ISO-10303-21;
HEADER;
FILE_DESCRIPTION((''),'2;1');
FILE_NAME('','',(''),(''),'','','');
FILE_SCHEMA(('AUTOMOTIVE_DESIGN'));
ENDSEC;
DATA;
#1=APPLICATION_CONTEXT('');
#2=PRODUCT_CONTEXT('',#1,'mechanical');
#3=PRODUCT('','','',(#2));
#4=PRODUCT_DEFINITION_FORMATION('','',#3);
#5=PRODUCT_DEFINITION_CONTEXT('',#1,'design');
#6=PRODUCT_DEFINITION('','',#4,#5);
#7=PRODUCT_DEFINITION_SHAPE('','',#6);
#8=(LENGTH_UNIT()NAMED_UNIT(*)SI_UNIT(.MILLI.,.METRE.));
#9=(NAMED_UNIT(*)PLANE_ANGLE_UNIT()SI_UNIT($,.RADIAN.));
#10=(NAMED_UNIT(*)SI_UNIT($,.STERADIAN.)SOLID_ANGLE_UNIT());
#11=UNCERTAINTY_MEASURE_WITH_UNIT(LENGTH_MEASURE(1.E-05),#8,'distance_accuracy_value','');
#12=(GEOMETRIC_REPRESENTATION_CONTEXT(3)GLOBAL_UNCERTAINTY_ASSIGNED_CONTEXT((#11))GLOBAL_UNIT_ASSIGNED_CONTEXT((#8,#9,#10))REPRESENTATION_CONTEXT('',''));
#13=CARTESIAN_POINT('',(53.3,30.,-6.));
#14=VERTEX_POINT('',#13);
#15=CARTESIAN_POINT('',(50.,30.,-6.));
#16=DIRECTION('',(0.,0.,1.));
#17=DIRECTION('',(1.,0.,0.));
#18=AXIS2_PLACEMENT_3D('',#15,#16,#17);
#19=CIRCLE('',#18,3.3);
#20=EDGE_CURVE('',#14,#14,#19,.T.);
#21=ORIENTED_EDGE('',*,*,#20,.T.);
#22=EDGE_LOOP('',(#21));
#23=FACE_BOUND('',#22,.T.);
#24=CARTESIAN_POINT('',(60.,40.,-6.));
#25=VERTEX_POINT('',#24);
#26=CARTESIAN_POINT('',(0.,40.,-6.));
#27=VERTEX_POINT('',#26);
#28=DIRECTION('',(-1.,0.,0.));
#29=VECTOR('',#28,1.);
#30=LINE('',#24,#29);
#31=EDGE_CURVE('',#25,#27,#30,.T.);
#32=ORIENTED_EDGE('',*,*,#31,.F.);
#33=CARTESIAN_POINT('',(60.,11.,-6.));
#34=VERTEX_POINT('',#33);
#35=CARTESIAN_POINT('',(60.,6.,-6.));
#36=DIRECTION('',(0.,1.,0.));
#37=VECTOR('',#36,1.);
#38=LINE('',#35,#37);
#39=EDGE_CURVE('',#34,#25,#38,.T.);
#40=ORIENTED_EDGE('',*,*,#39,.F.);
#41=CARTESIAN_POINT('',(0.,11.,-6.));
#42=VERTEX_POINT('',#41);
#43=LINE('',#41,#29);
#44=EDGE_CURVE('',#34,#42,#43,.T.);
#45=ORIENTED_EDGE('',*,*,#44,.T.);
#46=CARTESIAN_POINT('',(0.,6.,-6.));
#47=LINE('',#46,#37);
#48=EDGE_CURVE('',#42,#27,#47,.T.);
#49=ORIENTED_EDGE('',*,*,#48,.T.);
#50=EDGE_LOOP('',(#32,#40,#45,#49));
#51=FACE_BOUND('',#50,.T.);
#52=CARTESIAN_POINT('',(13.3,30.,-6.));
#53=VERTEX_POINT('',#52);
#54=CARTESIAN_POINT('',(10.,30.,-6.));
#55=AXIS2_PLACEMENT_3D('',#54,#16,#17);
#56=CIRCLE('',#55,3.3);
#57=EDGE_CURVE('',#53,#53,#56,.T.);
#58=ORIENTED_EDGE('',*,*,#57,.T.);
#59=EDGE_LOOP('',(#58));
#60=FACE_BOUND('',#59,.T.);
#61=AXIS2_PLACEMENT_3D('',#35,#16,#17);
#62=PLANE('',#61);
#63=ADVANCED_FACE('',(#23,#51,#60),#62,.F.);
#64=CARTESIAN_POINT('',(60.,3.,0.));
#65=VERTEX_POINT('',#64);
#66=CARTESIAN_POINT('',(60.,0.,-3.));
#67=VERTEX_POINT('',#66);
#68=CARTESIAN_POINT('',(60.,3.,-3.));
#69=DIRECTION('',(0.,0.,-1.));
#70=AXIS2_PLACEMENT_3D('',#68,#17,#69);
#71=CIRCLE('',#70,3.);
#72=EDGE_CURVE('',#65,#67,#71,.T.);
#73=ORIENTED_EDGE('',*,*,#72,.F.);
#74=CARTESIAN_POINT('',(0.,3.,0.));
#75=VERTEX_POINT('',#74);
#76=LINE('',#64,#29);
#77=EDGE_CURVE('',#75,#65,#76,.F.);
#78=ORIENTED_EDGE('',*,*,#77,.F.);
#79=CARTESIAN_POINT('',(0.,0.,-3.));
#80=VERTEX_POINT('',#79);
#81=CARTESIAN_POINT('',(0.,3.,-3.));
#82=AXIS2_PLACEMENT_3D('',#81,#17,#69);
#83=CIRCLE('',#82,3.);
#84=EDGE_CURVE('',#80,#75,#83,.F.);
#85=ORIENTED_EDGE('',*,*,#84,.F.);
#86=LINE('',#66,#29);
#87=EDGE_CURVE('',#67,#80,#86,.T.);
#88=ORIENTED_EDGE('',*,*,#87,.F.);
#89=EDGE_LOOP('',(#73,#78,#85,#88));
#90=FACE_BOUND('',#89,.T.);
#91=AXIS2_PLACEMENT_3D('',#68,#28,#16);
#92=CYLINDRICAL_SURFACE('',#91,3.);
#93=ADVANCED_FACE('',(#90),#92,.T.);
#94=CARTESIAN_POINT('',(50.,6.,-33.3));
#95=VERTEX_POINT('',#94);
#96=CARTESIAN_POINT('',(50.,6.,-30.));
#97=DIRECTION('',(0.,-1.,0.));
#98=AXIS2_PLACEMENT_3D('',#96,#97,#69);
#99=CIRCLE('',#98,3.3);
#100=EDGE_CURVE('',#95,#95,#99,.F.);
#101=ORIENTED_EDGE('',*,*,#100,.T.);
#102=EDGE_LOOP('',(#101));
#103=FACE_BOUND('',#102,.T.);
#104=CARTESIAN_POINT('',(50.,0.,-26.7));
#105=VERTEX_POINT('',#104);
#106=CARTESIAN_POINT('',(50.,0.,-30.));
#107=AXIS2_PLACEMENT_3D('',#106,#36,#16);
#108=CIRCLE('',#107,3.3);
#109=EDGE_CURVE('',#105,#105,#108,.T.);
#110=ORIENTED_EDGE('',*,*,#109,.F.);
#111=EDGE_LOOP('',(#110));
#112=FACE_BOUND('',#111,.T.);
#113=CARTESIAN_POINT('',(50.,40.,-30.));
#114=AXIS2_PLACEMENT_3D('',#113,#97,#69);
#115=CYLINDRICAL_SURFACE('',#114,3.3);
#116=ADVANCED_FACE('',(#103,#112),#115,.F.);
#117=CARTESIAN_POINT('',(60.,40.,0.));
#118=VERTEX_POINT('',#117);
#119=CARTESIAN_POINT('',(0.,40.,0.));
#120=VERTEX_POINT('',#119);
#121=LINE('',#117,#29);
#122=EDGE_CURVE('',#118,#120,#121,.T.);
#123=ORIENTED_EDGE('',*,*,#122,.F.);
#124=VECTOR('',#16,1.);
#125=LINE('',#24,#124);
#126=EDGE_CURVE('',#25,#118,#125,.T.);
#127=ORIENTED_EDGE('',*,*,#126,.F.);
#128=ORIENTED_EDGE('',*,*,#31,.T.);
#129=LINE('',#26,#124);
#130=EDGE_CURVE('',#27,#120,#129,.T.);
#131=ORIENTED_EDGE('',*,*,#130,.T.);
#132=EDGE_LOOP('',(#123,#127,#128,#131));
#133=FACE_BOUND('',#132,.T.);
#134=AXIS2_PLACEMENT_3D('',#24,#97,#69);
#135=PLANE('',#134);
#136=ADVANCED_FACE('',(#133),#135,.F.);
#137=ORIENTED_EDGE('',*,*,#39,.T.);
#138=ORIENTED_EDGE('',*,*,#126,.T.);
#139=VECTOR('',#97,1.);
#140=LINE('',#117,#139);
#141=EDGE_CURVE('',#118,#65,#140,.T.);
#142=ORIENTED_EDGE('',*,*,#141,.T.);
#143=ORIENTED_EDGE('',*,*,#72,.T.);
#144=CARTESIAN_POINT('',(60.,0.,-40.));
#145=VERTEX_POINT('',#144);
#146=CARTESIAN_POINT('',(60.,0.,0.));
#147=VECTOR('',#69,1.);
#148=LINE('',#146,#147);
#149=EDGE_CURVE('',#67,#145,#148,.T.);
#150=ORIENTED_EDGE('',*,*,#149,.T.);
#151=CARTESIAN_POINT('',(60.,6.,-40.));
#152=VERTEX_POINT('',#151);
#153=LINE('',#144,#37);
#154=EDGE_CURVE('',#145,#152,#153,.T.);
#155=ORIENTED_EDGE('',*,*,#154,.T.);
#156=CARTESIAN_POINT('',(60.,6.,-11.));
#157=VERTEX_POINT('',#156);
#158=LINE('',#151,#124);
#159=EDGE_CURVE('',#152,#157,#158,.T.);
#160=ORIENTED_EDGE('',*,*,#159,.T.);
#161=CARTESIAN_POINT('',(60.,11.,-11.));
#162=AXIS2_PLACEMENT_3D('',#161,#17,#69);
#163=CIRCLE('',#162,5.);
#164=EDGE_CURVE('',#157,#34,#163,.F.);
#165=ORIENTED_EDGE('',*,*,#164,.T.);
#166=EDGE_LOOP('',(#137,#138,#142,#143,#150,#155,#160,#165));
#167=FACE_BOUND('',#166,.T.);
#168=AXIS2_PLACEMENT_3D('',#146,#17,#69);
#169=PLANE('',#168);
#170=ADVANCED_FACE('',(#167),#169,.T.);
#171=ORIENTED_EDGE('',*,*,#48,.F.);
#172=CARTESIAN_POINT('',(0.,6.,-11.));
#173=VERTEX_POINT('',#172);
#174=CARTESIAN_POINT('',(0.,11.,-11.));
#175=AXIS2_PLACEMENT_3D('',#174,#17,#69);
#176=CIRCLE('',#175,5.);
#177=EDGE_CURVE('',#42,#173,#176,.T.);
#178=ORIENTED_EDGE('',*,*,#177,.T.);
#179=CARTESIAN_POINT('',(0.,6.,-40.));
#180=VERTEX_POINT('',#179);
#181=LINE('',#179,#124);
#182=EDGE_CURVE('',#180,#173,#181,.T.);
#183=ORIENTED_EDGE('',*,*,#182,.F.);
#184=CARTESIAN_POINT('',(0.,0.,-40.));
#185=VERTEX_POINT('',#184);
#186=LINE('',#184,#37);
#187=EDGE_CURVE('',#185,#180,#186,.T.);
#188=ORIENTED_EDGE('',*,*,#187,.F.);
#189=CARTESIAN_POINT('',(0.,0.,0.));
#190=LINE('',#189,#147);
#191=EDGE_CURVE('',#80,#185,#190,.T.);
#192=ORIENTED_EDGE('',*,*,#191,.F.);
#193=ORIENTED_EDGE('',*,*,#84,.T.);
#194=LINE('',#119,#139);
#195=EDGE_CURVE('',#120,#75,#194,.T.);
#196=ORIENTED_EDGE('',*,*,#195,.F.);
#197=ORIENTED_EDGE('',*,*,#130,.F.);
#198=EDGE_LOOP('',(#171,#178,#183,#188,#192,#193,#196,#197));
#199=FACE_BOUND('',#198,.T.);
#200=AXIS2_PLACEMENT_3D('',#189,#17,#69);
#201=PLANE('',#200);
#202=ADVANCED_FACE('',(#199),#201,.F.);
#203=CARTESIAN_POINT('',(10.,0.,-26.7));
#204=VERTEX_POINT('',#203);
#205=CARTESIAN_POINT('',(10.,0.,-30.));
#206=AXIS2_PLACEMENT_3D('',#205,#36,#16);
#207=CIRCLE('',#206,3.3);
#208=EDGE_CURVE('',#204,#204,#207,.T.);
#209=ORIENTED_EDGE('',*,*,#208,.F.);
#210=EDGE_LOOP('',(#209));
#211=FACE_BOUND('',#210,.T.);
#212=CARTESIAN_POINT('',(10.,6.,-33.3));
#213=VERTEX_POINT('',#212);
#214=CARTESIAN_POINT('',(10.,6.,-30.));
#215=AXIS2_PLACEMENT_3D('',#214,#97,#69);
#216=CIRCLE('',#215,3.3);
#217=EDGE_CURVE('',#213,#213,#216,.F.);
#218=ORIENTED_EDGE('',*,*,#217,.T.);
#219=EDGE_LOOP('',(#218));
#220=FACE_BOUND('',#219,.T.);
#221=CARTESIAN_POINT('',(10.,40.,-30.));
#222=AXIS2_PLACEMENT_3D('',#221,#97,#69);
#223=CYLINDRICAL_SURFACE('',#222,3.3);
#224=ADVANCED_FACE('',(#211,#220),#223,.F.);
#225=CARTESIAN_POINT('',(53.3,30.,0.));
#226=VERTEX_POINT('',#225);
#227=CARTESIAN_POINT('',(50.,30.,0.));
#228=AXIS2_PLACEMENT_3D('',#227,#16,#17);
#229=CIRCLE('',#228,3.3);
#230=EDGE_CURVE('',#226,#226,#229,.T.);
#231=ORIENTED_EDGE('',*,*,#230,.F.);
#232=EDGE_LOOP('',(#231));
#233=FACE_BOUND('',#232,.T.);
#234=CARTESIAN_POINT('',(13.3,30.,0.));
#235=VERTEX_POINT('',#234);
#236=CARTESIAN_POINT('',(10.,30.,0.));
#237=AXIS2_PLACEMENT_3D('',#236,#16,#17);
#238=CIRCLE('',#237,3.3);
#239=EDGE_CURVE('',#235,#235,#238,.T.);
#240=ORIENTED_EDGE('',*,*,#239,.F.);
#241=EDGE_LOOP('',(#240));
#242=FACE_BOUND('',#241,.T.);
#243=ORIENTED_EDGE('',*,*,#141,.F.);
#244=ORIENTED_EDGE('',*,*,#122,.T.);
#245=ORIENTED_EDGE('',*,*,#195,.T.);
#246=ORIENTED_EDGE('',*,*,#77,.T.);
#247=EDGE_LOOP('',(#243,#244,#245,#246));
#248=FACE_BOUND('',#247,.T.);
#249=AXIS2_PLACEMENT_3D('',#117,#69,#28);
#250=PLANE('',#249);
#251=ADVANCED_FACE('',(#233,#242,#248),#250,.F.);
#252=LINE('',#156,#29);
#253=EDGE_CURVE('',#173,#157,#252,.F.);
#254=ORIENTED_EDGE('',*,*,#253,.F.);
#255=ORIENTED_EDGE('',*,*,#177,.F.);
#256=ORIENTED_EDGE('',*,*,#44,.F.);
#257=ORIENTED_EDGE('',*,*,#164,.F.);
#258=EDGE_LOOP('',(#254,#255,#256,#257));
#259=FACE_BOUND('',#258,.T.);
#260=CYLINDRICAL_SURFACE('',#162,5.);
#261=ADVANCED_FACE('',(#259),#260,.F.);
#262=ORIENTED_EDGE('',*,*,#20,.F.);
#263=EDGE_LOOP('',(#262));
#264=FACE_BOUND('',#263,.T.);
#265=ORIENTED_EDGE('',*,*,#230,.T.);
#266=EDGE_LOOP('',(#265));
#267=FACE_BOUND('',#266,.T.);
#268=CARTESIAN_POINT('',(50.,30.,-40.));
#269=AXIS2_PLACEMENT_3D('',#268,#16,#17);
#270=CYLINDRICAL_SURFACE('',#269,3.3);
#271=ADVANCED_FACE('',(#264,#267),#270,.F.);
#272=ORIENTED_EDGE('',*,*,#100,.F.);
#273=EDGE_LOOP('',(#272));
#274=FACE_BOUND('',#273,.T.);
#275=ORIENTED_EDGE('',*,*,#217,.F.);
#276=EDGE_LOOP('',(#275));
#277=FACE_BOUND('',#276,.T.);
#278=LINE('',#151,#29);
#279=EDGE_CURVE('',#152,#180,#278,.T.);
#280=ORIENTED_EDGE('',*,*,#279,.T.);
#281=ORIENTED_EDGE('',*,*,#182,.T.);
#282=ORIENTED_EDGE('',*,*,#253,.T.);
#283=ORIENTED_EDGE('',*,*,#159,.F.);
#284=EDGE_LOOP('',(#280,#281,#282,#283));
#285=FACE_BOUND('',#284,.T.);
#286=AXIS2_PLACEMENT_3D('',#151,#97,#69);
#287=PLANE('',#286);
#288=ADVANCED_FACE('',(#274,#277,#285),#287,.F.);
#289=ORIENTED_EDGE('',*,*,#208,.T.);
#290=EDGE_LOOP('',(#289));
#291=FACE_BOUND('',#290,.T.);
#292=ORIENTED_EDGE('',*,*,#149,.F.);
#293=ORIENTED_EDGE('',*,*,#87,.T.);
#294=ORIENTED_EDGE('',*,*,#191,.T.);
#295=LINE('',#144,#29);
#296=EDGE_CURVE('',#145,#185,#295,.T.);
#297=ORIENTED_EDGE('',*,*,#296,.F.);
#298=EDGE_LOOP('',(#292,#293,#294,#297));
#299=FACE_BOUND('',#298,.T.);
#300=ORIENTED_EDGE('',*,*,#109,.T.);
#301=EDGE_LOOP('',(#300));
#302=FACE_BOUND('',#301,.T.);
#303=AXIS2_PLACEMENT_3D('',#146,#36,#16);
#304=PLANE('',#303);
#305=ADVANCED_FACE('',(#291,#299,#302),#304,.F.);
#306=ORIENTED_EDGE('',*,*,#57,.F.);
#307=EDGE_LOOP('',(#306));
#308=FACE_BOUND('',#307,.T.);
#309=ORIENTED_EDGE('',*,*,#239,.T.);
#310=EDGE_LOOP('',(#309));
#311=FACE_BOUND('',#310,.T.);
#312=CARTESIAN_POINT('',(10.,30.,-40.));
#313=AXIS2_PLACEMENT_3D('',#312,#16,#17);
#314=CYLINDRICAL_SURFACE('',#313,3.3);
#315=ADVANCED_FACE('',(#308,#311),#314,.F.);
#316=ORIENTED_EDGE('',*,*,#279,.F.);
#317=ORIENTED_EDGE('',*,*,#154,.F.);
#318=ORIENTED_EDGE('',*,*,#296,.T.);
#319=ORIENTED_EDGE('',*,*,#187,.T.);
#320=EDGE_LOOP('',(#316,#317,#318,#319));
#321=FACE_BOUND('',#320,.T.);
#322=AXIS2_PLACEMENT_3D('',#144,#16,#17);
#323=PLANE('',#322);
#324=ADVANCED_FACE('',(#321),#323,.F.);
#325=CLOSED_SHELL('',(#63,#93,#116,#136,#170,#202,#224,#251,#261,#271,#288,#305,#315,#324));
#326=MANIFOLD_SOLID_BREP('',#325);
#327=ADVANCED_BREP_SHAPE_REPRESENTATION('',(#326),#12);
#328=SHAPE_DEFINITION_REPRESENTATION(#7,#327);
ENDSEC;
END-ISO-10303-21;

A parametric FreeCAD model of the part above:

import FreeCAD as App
import Part
import Sketcher
from FreeCAD import Vector
Q = App.Units.Quantity


def edges_at(feature, points):
    """Names of the edges that pass closest to the given points."""
    edges = feature.Shape.Edges
    near = lambda p: min(range(len(edges)), key=lambda i: edges[i].distToShape(Part.Vertex(*p))[0])
    return sorted({f"Edge{near(p) + 1}" for p in points})

doc = App.newDocument("Part")
body = doc.addObject("PartDesign::Body", "Body")

# Sketch on YZ plane
sketch1 = body.newObject("Sketcher::SketchObject", "Sketch")
sketch1.AttachmentSupport = (doc.getObject("YZ_Plane"), [""])
sketch1.MapMode = "FlatFace"
sketch1.addGeometry([
    Part.LineSegment(Vector(0, 0, 0), Vector(0, -40, 0)),  # 0
    Part.LineSegment(Vector(0, -40, 0), Vector(6, -40, 0)),  # 1
    Part.LineSegment(Vector(6, -40, 0), Vector(6, -6, 0)),  # 2
    Part.LineSegment(Vector(6, -6, 0), Vector(40, -6, 0)),  # 3
    Part.LineSegment(Vector(40, -6, 0), Vector(40, 0, 0)),  # 4
    Part.LineSegment(Vector(40, 0, 0), Vector(0, 0, 0)),  # 5
], False)
sketch1.addConstraint([
    Sketcher.Constraint("Coincident", 0, 2, 1, 1),
    Sketcher.Constraint("Coincident", 1, 2, 2, 1),
    Sketcher.Constraint("Coincident", 2, 2, 3, 1),
    Sketcher.Constraint("Coincident", 3, 2, 4, 1),
    Sketcher.Constraint("Coincident", 4, 2, 5, 1),
    Sketcher.Constraint("Coincident", 5, 2, 0, 1),
    Sketcher.Constraint("Vertical", 0),
    Sketcher.Constraint("Horizontal", 1),
    Sketcher.Constraint("Vertical", 2),
    Sketcher.Constraint("Horizontal", 3),
    Sketcher.Constraint("Vertical", 4),
    Sketcher.Constraint("Horizontal", 5),
    Sketcher.Constraint("Coincident", 5, 2, -1, 1),
    Sketcher.Constraint("Equal", 5, 0),
    Sketcher.Constraint("Equal", 3, 2),
    Sketcher.Constraint("DistanceX", 1, 1, 1, 2, Q("6 mm")),
    Sketcher.Constraint("DistanceX", 3, 1, 3, 2, Q("34 mm")),
])
pad1 = body.newObject("PartDesign::Pad", "Pad")
pad1.Profile = sketch1
pad1.Length = 60

# Sketch on XZ plane
sketch2 = body.newObject("Sketcher::SketchObject", "Sketch001")
sketch2.AttachmentSupport = (doc.getObject("XZ_Plane"), [""])
sketch2.MapMode = "FlatFace"
sketch2.addGeometry([
    Part.Circle(Vector(10, -30, 0), Vector(0, 0, 1), 3.3),
    Part.Circle(Vector(50, -30, 0), Vector(0, 0, 1), 3.3),
], False)
sketch2.addConstraint([
    Sketcher.Constraint("Equal", 0, 1),
    Sketcher.Constraint("Horizontal", 0, 3, 1, 3),
    Sketcher.Constraint("Diameter", 0, Q("6.6 mm")),
    Sketcher.Constraint("DistanceX", -1, 1, 0, 3, Q("10 mm")),
    Sketcher.Constraint("DistanceY", 0, 3, -1, 1, Q("30 mm")),
    Sketcher.Constraint("DistanceX", -1, 1, 1, 3, Q("50 mm")),
])
pocket1 = body.newObject("PartDesign::Pocket", "Pocket")
pocket1.Profile = sketch2
pocket1.Type = "ThroughAll"

# Sketch on XY plane
sketch3 = body.newObject("Sketcher::SketchObject", "Sketch002")
sketch3.AttachmentSupport = (doc.getObject("XY_Plane"), [""])
sketch3.MapMode = "FlatFace"
sketch3.addGeometry([
    Part.Circle(Vector(10, 30, 0), Vector(0, 0, 1), 3.3),
    Part.Circle(Vector(50, 30, 0), Vector(0, 0, 1), 3.3),
], False)
sketch3.addConstraint([
    Sketcher.Constraint("Equal", 0, 1),
    Sketcher.Constraint("Horizontal", 0, 3, 1, 3),
    Sketcher.Constraint("Diameter", 0, Q("6.6 mm")),
    Sketcher.Constraint("DistanceX", -1, 1, 0, 3, Q("10 mm")),
    Sketcher.Constraint("DistanceY", -1, 1, 0, 3, Q("30 mm")),
    Sketcher.Constraint("DistanceX", -1, 1, 1, 3, Q("50 mm")),
])
pocket2 = body.newObject("PartDesign::Pocket", "Pocket001")
pocket2.Profile = sketch3
pocket2.Type = "ThroughAll"
doc.recompute()

fillet = body.newObject("PartDesign::Fillet", "Fillet")
fillet.Base = (pocket2, edges_at(pocket2, [(30, 6, -6)]))
fillet.Radius = 5
doc.recompute()

fillet2 = body.newObject("PartDesign::Fillet", "Fillet001")
fillet2.Base = (fillet, edges_at(fillet, [(30, 0, 0)]))
fillet2.Radius = 3

doc.recompute()
